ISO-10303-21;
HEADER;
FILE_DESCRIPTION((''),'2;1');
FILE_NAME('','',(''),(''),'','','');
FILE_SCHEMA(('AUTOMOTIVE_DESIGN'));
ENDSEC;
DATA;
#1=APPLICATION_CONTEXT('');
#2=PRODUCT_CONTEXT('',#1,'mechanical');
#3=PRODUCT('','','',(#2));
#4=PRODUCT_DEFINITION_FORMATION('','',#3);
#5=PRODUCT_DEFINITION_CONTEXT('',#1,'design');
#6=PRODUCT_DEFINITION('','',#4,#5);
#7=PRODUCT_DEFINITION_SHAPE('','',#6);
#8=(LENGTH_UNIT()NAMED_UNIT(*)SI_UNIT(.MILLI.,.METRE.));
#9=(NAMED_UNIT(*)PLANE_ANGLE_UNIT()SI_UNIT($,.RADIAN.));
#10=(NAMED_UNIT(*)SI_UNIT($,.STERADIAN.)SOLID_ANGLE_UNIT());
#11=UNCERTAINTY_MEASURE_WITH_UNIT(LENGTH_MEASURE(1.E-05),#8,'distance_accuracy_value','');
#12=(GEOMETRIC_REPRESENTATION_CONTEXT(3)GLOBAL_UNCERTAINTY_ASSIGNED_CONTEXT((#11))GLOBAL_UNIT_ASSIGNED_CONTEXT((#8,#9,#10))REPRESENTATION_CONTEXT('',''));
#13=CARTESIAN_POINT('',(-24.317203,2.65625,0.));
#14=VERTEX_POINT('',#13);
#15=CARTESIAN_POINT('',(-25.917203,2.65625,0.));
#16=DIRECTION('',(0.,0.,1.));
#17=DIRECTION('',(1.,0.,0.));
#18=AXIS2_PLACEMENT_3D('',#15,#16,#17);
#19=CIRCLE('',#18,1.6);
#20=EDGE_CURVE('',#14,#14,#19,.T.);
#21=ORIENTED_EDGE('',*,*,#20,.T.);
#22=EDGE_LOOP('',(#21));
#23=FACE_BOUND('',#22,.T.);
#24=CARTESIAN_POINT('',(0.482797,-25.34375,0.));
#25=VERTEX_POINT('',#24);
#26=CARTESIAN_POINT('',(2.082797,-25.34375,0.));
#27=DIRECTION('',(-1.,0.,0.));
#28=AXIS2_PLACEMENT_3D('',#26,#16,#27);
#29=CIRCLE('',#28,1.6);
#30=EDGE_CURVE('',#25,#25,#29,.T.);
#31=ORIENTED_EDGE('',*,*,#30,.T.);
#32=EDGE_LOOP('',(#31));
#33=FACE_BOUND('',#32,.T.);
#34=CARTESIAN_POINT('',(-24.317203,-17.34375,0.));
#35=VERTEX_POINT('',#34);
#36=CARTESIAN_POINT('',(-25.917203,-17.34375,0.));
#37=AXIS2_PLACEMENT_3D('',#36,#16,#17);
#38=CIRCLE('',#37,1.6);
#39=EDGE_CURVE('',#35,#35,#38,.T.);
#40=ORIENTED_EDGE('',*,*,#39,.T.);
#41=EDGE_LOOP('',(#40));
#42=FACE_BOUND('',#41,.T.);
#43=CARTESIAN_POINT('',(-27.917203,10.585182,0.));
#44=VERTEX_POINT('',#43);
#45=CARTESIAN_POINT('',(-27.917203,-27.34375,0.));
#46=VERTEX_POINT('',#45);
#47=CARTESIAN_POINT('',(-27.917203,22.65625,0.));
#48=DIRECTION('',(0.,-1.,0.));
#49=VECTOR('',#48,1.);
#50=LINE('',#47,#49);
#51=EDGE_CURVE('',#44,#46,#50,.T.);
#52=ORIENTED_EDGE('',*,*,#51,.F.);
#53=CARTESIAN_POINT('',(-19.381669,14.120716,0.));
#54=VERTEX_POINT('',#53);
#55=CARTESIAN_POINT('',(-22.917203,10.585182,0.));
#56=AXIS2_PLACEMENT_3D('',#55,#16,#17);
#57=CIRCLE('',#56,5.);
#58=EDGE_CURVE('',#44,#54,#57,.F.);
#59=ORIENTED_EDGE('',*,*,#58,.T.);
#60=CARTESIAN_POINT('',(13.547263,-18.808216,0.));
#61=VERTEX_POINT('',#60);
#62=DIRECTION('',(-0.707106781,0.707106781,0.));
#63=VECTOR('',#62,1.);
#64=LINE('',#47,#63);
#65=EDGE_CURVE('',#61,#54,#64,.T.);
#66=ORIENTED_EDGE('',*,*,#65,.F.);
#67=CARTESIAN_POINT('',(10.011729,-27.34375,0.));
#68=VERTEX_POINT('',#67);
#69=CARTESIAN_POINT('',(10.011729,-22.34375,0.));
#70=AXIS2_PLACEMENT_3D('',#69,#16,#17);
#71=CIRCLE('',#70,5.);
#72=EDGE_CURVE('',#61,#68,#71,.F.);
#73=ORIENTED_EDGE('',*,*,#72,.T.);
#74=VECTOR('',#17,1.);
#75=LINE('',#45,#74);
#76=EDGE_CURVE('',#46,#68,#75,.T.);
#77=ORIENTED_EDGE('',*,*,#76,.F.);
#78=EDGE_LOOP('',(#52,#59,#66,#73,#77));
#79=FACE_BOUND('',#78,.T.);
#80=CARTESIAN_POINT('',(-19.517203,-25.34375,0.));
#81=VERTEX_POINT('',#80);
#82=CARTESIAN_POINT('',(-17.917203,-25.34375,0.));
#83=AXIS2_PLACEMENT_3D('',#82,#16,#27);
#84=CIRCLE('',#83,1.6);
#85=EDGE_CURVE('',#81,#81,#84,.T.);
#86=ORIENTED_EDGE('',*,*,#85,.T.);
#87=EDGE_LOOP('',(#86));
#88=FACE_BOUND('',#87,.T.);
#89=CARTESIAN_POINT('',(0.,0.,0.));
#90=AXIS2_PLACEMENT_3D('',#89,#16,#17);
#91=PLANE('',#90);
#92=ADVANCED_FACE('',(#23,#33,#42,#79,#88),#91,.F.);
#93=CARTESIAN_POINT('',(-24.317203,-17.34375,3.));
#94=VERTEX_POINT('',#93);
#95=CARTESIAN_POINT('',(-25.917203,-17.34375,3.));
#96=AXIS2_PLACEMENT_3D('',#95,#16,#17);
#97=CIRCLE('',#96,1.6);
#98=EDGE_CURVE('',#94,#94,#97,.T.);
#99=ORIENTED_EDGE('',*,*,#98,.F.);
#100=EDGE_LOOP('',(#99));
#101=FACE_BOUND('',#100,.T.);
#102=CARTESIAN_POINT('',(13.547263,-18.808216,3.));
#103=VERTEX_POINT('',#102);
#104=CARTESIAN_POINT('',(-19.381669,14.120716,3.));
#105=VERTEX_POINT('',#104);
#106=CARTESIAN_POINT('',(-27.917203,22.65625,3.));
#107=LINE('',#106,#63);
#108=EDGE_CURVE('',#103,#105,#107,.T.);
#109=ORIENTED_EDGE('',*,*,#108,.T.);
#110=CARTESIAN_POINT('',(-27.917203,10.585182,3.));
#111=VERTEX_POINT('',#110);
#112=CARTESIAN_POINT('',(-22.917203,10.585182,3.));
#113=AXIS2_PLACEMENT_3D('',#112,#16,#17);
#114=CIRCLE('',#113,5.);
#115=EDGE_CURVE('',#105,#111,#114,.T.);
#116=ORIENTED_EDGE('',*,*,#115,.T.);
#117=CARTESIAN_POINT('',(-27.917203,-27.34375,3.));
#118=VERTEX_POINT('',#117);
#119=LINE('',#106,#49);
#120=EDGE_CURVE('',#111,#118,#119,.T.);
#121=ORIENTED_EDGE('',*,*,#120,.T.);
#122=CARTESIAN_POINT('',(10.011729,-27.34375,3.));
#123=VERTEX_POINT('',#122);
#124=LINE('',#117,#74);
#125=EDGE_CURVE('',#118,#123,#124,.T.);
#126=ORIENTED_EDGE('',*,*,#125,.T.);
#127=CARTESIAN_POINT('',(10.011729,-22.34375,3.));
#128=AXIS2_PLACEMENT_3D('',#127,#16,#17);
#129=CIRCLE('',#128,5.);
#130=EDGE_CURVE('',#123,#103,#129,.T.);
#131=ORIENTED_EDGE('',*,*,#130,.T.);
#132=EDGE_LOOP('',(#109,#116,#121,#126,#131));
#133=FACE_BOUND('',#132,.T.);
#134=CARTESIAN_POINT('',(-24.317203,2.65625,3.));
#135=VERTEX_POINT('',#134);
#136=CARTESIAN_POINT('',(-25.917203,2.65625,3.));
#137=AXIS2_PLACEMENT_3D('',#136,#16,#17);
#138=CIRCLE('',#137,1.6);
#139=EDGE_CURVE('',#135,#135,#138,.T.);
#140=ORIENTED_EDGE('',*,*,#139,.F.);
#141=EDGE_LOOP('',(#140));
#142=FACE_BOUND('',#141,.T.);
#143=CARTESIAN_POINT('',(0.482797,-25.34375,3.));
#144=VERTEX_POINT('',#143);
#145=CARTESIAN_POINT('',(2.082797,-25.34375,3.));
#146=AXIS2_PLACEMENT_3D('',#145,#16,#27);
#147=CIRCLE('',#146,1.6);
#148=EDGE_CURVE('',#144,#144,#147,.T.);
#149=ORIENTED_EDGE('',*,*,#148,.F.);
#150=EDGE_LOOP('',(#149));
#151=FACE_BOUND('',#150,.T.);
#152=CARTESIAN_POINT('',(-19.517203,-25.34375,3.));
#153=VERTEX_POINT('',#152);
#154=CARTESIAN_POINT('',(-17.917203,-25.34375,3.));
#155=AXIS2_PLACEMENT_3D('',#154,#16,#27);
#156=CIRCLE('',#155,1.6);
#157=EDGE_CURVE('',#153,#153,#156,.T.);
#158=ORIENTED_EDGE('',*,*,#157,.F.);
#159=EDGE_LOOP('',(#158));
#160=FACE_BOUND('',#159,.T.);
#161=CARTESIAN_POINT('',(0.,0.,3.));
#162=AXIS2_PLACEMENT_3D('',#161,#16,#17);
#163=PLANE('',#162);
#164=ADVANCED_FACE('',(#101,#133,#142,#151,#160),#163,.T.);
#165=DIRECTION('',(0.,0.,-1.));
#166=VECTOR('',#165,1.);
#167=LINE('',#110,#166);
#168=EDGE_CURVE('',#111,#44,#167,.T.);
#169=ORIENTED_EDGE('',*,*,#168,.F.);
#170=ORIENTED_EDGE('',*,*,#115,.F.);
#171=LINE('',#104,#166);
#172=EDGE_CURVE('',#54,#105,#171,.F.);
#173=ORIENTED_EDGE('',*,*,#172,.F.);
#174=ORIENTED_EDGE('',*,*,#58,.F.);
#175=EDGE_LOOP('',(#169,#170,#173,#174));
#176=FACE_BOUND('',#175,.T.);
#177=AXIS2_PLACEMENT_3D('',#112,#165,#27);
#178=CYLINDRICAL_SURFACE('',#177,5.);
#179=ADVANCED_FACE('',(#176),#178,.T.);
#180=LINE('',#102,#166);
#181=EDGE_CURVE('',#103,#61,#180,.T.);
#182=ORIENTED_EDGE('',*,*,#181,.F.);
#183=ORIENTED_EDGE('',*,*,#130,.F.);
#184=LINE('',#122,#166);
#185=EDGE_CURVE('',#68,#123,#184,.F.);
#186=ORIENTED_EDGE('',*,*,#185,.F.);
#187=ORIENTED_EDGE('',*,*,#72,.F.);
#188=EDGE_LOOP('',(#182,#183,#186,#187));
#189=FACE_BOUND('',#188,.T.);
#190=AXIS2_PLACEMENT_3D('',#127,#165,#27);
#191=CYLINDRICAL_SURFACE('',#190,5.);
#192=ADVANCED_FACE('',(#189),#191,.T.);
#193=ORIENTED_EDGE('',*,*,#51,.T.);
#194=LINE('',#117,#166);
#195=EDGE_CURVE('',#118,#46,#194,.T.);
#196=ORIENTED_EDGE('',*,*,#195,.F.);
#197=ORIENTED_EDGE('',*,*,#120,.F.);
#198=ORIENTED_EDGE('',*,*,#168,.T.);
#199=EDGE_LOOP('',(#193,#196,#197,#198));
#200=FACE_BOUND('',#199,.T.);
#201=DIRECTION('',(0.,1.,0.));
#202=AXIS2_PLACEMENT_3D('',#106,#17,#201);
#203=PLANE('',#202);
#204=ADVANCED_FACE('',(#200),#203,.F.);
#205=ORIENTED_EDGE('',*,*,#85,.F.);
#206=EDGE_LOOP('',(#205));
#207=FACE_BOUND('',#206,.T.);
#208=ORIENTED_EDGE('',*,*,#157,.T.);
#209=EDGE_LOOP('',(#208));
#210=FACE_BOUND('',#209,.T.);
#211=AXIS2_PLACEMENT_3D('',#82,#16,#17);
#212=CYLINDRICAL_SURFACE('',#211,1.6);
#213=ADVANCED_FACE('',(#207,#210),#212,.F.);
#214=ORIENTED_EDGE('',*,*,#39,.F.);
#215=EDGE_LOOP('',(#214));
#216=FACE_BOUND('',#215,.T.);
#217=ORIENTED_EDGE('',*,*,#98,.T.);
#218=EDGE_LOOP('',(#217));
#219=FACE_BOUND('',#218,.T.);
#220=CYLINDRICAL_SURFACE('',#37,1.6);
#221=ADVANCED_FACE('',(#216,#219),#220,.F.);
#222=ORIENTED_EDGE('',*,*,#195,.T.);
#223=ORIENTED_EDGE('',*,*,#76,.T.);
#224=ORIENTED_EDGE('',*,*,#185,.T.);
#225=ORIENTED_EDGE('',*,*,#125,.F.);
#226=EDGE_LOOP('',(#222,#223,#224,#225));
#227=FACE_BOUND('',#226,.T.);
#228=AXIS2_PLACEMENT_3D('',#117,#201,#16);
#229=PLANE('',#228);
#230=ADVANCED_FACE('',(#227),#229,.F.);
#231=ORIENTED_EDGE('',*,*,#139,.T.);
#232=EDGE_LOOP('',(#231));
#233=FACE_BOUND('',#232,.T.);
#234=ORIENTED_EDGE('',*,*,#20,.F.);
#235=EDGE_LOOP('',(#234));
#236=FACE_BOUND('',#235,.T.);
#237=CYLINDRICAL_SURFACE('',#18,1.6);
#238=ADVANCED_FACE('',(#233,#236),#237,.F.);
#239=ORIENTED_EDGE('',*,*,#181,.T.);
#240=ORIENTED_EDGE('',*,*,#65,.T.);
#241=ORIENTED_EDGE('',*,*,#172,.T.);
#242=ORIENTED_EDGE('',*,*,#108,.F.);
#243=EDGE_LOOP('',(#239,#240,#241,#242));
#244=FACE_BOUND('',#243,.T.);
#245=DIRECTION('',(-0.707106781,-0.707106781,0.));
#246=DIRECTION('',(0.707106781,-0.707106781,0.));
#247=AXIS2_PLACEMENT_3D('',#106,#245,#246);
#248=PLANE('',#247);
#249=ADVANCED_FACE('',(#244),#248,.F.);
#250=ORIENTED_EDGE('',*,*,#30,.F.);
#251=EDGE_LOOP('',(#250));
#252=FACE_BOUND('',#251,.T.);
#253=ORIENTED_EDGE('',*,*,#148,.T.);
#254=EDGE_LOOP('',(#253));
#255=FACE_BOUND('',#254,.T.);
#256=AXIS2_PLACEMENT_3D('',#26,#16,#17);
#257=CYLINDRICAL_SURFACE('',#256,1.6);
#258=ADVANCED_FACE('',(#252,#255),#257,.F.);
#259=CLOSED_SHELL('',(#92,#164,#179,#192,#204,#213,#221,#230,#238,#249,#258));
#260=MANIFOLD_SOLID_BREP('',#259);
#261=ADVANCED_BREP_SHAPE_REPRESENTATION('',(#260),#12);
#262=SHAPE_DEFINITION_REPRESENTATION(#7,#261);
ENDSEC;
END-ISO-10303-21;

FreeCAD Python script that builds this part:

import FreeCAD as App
import Part
import Sketcher
Q = App.Units.Quantity


def edges_at(feature, points):
    """Names of the edges that pass closest to the given points."""
    edges = feature.Shape.Edges
    near = lambda p: min(range(len(edges)), key=lambda i: edges[i].distToShape(Part.Vertex(*p))[0])
    return sorted({f"Edge{near(p) + 1}" for p in points})

doc = App.newDocument("Part")
body = doc.addObject("PartDesign::Body", "Body")

# Sketch on XY plane
sketch1 = body.newObject("Sketcher::SketchObject", "Sketch")
sketch1.AttachmentSupport = (doc.getObject("XY_Plane"), [""])
sketch1.MapMode = "FlatFace"
sketch1.addGeometry([
    Part.LineSegment(App.Vector(-28, 23, 0), App.Vector(-28, -27, 0)),
    Part.LineSegment(App.Vector(-28, -27, 0), App.Vector(22, -27, 0)),
    Part.LineSegment(App.Vector(22, -27, 0), App.Vector(-28, 23, 0)),
], False)
sketch1.addConstraint([
    Sketcher.Constraint("Coincident", 0, 2, 1, 1),
    Sketcher.Constraint("Coincident", 1, 2, 2, 1),
    Sketcher.Constraint("Coincident", 2, 2, 0, 1),
    Sketcher.Constraint("Vertical", 0),
    Sketcher.Constraint("Horizontal", 1),
    Sketcher.Constraint("Equal", 1, 0),
    Sketcher.Constraint("DistanceX", 1, 1, 1, 2, Q("50 mm")),
    Sketcher.Constraint("DistanceY", 0, 2, -1, 1, Q("27.34375 mm")),
    Sketcher.Constraint("DistanceX", 0, 2, -1, 1, Q("27.917203 mm")),
])
pad1 = body.newObject("PartDesign::Pad", "Pad")
pad1.Profile = sketch1
pad1.Length = 3

# Sketch on XY plane
sketch2 = body.newObject("Sketcher::SketchObject", "Sketch001")
sketch2.AttachmentSupport = (doc.getObject("XY_Plane"), [""])
sketch2.MapMode = "FlatFace"
sketch2.AttachmentOffset = App.Placement(App.Vector(0, 0, 3), App.Rotation())
sketch2.addGeometry([
    Part.Circle(App.Vector(-25.9, -17.3, 0), App.Vector(0, 0, 1), 1.6),
    Part.Circle(App.Vector(-25.9, 2.7, 0), App.Vector(0, 0, 1), 1.6),
    Part.Circle(App.Vector(-17.9, -25.3, 0), App.Vector(0, 0, 1), 1.6),
    Part.Circle(App.Vector(2.1, -25.3, 0), App.Vector(0, 0, 1), 1.6),
], False)
sketch2.addConstraint([
    Sketcher.Constraint("Equal", 0, 1),
    Sketcher.Constraint("Equal", 1, 2),
    Sketcher.Constraint("Equal", 2, 3),
    Sketcher.Constraint("Horizontal", 2, 3, 3, 3),
    Sketcher.Constraint("Vertical", 0, 3, 1, 3),
    Sketcher.Constraint("Diameter", 0, Q("3.2 mm")),
    Sketcher.Constraint("DistanceY", 0, 3, 1, 3, Q("20 mm")),
    Sketcher.Constraint("DistanceX", 0, 3, 2, 3, Q("8 mm")),
    Sketcher.Constraint("DistanceY", 2, 3, 0, 3, Q("8 mm")),
    Sketcher.Constraint("DistanceX", 2, 3, 3, 3, Q("20 mm")),
    Sketcher.Constraint("DistanceY", 0, 3, -1, 1, Q("17.34375 mm")),
    Sketcher.Constraint("DistanceX", 0, 3, -1, 1, Q("25.917203 mm")),
])
pocket1 = body.newObject("PartDesign::Pocket", "Pocket")
pocket1.Profile = sketch2
pocket1.Length = 3
doc.recompute()

fillet = body.newObject("PartDesign::Fillet", "Fillet")
fillet.Base = (pocket1, edges_at(pocket1, [(22.083, -27.344, 1.5), (-27.917, 22.656, 1.5)]))
fillet.Radius = 5

doc.recompute()
